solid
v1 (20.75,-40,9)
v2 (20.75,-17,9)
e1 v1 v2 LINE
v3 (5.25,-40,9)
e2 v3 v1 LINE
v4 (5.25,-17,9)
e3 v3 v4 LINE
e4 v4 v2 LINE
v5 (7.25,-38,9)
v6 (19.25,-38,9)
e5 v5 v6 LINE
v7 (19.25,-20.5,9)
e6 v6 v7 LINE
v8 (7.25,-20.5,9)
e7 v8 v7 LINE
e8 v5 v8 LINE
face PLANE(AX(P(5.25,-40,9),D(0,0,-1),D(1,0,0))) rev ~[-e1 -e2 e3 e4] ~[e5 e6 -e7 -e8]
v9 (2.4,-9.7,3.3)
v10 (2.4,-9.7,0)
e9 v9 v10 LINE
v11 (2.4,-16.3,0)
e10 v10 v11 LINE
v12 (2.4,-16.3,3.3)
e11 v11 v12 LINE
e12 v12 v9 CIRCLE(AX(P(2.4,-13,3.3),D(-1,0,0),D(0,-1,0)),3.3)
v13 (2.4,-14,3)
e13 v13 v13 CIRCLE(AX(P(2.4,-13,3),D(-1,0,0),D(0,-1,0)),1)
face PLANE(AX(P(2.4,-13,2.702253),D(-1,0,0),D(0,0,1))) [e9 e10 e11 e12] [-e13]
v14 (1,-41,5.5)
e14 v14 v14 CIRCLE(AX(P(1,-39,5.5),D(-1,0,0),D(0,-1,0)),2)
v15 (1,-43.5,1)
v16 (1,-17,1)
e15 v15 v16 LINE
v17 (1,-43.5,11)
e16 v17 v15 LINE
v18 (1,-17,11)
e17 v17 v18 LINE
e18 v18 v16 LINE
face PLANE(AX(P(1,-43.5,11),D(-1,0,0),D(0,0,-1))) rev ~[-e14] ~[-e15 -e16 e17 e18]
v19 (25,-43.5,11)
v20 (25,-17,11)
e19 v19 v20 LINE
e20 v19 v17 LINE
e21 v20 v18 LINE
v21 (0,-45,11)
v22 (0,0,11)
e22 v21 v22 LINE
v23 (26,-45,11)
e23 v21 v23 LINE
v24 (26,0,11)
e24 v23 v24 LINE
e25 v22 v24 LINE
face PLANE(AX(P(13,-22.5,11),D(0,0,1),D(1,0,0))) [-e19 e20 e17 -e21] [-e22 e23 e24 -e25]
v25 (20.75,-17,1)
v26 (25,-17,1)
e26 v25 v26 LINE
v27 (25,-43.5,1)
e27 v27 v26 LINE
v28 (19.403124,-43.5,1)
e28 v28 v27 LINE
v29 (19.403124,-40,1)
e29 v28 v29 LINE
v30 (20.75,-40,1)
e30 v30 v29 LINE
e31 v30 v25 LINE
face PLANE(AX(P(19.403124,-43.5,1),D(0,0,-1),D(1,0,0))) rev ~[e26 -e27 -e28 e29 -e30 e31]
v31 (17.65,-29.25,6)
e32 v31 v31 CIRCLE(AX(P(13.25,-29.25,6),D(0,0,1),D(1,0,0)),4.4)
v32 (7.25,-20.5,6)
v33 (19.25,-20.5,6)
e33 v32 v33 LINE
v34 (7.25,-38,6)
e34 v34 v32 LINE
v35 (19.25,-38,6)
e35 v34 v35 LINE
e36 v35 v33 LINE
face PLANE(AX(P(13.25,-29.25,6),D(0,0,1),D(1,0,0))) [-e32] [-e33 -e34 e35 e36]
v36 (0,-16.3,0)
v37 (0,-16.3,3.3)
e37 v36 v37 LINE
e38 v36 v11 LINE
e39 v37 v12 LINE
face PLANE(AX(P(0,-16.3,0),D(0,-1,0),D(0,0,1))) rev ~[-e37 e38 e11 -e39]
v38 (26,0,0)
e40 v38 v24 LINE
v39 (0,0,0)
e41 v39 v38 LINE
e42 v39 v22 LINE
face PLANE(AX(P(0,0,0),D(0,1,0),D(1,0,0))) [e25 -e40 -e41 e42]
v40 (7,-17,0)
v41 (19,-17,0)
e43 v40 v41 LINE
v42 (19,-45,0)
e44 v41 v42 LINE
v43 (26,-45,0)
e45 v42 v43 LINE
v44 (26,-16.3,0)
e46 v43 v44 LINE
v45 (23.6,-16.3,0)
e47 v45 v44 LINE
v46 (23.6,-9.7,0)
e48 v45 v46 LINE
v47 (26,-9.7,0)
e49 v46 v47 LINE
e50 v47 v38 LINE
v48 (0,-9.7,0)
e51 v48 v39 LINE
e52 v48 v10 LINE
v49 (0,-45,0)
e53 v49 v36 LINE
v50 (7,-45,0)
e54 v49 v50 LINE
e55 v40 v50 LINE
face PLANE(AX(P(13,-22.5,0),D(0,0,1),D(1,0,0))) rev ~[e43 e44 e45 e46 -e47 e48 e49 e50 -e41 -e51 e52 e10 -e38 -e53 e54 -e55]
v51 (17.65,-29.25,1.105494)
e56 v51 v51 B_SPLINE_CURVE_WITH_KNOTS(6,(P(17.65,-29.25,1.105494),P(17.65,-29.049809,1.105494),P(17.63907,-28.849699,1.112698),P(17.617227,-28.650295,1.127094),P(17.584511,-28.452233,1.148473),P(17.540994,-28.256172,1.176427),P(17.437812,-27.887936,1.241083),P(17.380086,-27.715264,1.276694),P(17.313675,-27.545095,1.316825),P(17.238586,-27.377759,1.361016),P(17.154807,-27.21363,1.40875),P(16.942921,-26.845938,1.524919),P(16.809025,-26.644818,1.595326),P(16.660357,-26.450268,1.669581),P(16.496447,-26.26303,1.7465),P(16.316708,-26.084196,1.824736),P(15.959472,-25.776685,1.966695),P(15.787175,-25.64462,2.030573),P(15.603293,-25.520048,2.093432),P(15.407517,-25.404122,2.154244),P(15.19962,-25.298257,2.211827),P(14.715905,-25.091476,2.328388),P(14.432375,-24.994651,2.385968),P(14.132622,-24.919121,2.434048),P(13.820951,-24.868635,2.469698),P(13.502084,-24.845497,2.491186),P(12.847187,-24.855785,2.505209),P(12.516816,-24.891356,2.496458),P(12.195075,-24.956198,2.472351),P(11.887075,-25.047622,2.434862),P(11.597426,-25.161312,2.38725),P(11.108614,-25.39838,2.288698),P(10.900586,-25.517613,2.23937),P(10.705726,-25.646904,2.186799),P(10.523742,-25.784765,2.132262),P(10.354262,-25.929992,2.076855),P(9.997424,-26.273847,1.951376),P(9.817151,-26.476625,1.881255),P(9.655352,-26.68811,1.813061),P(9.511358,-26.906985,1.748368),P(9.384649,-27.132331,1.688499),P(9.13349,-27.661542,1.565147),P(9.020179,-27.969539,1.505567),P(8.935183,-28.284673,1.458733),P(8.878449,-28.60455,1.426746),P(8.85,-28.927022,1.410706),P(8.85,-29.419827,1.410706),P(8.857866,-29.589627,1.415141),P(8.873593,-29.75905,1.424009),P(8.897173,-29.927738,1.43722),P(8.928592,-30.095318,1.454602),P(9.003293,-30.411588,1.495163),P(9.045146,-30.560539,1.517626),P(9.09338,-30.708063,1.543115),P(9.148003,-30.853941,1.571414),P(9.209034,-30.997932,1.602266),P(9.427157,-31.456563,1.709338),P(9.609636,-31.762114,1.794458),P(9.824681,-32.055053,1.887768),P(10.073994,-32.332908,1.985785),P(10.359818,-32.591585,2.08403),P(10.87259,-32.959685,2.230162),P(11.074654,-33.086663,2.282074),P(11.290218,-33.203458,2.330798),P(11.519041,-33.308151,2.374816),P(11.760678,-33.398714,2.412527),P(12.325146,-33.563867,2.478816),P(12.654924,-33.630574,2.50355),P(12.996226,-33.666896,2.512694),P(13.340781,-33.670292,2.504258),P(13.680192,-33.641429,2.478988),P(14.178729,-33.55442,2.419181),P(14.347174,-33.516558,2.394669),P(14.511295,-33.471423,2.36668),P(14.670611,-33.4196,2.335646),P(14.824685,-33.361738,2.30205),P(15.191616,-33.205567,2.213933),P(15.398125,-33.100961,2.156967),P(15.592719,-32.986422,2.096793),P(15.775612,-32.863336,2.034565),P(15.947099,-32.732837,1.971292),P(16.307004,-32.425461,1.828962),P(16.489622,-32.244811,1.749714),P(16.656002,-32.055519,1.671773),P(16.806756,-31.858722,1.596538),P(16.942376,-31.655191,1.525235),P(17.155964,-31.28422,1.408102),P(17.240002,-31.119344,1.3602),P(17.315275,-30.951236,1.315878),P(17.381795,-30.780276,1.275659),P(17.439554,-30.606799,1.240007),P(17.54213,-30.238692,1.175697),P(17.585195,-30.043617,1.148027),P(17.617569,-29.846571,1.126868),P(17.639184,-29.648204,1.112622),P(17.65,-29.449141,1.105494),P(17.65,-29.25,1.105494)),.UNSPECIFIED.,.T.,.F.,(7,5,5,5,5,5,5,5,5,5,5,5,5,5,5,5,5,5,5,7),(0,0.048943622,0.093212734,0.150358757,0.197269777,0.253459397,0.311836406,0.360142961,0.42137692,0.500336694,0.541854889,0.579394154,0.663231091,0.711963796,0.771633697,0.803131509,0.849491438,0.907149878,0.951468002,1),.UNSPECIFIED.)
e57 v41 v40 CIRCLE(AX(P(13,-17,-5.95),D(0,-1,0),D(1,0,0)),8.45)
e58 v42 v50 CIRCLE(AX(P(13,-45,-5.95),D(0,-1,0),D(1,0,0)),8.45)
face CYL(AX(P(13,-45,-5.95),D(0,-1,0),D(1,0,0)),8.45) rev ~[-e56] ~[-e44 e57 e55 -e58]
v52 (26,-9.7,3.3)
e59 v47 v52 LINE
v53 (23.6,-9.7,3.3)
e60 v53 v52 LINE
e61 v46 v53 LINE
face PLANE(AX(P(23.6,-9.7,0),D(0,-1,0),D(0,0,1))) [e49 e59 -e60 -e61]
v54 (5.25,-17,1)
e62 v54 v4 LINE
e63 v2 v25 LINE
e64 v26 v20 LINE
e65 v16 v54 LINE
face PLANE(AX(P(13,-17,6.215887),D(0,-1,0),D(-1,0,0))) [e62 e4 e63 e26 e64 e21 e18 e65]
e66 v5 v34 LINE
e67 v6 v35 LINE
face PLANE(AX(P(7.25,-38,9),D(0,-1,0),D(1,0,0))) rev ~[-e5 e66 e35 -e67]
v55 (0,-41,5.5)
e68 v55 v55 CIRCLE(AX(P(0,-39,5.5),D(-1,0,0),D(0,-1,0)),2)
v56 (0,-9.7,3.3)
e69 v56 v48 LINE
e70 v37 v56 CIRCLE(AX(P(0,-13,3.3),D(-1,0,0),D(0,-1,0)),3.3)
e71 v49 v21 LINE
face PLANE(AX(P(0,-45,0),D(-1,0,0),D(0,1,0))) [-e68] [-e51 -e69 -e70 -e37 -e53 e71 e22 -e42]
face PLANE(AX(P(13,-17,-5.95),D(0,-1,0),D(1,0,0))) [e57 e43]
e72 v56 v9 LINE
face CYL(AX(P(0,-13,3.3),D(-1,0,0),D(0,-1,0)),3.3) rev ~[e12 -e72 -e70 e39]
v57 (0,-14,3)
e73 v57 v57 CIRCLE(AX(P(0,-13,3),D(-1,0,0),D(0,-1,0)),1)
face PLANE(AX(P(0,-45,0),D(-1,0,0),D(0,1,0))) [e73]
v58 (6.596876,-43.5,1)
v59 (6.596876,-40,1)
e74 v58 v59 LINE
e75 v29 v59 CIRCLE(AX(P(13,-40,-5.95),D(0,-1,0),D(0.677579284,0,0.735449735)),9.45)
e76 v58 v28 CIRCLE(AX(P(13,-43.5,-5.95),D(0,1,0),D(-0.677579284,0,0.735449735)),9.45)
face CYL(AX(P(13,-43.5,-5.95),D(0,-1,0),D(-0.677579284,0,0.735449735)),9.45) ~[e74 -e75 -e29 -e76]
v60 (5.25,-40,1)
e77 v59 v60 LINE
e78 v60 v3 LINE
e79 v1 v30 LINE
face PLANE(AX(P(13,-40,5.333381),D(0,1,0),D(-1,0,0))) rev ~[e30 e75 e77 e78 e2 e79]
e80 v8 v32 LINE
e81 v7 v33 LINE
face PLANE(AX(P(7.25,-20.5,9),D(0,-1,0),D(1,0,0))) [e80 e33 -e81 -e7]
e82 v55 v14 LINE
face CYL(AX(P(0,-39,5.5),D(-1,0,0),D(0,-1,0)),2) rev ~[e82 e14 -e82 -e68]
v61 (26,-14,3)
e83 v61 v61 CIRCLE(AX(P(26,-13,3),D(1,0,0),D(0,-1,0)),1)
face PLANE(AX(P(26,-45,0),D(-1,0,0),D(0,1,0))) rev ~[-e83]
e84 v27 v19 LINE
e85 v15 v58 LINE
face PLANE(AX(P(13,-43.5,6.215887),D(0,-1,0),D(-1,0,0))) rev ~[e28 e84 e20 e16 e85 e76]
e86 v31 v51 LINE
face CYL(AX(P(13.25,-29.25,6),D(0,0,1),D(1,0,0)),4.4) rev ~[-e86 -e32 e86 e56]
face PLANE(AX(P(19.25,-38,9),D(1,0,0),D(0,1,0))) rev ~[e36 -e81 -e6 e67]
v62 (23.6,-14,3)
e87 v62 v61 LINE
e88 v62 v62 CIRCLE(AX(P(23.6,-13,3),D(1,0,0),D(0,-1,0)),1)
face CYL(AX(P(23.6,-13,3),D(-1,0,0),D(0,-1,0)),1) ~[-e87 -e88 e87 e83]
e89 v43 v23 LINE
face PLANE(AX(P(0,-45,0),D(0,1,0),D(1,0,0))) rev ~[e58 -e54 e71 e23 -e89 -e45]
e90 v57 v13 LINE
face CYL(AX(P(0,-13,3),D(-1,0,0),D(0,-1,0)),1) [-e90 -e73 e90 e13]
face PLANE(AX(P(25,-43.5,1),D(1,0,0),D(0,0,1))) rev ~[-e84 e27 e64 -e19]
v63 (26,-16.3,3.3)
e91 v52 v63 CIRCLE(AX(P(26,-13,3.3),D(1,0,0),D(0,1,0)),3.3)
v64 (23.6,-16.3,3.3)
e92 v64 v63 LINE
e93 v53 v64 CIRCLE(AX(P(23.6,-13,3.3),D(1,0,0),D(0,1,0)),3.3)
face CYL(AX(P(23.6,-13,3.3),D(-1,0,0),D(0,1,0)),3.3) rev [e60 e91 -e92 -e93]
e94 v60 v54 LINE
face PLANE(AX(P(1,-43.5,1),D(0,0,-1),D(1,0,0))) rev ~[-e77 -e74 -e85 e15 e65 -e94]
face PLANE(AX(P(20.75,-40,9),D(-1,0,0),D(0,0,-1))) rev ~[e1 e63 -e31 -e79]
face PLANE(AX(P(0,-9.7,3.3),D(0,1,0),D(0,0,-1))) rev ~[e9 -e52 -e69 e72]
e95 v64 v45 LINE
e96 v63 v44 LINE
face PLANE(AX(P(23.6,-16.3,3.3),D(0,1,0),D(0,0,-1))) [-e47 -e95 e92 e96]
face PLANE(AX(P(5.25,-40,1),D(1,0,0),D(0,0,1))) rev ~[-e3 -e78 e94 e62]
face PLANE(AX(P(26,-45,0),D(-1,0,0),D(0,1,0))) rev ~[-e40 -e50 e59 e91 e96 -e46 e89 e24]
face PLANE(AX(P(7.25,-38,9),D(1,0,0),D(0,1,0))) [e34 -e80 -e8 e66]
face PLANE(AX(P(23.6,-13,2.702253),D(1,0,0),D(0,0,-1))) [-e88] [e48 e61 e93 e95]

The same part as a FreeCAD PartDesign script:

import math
import FreeCAD as App
import Part
import Sketcher
from FreeCAD import Vector


def add_polygon(sketch, points):
    """Adds a closed chain of lines whose ends are joined by coincident constraints."""
    first, n = sketch.GeometryCount, len(points)
    for a, b in zip(points, points[1:] + points[:1]):
        sketch.addGeometry(Part.LineSegment(App.Vector(*a, 0), App.Vector(*b, 0)), False)
    for i in range(n):
        sketch.addConstraint(Sketcher.Constraint("Coincident", first + i, 2, first + (i + 1) % n, 1))

doc = App.newDocument("Part")
body = doc.addObject("PartDesign::Body", "Body")

# Sketch on XY plane
sketch1 = body.newObject("Sketcher::SketchObject", "Sketch")
sketch1.AttachmentSupport = (doc.getObject("XY_Plane"), [""])
sketch1.MapMode = "FlatFace"
add_polygon(sketch1, [(0, 0), (0, -45), (26, -45), (26, 0)])  # lines 0-3
sketch1.addConstraint(Sketcher.Constraint("Vertical", 0))
sketch1.addConstraint(Sketcher.Constraint("Horizontal", 1))
sketch1.addConstraint(Sketcher.Constraint("Vertical", 2))
sketch1.addConstraint(Sketcher.Constraint("Horizontal", 3))
sketch1.addConstraint(Sketcher.Constraint("Coincident", 3, 2, -1, 1))
sketch1.addConstraint(Sketcher.Constraint("DistanceX", 1, 1, 1, 2, 26.0))
sketch1.addConstraint(Sketcher.Constraint("DistanceY", 0, 2, 0, 1, 45.0))
pad1 = body.newObject("PartDesign::Pad", "Pad")
pad1.Profile = sketch1
pad1.Length = 11

# Sketch on XZ plane
sketch2 = body.newObject("Sketcher::SketchObject", "Sketch001")
sketch2.AttachmentSupport = (doc.getObject("XZ_Plane"), [""])
sketch2.MapMode = "FlatFace"
sketch2.AttachmentOffset = App.Placement(Vector(0, 0, 45), App.Rotation())
sketch2.addGeometry(Part.Circle(Vector(13, -6, 0), Vector(0, 0, 1), 8), False)
sketch2.addConstraint(Sketcher.Constraint("Diameter", 0, 16.9))
sketch2.addConstraint(Sketcher.Constraint("DistanceX", -1, 1, 0, 3, 13.0))
sketch2.addConstraint(Sketcher.Constraint("DistanceY", 0, 3, -1, 1, 5.95))
pocket1 = body.newObject("PartDesign::Pocket", "Pocket")
pocket1.Profile = sketch2
pocket1.Length = 28

# Sketch on XZ plane
sketch3 = body.newObject("Sketcher::SketchObject", "Sketch002")
sketch3.AttachmentSupport = (doc.getObject("XZ_Plane"), [""])
sketch3.MapMode = "FlatFace"
sketch3.AttachmentOffset = App.Placement(Vector(0, 0, 43.5), App.Rotation())
sketch3.addGeometry(Part.LineSegment(Vector(1, 11, 0), Vector(1, 1, 0)), False)
sketch3.addGeometry(Part.LineSegment(Vector(1, 1, 0), Vector(7, 1, 0)), False)
sketch3.addGeometry(Part.ArcOfCircle(Part.Circle(Vector(13, -6, 0), Vector(0, 0, 1), 9), math.radians(47), math.radians(133)), False)
sketch3.addGeometry(Part.LineSegment(Vector(19, 1, 0), Vector(25, 1, 0)), False)
sketch3.addGeometry(Part.LineSegment(Vector(25, 1, 0), Vector(25, 11, 0)), False)
sketch3.addGeometry(Part.LineSegment(Vector(25, 11, 0), Vector(1, 11, 0)), False)
sketch3.addConstraint(Sketcher.Constraint("Coincident", 0, 2, 1, 1))
sketch3.addConstraint(Sketcher.Constraint("Coincident", 1, 2, 2, 2))
sketch3.addConstraint(Sketcher.Constraint("Coincident", 2, 1, 3, 1))
sketch3.addConstraint(Sketcher.Constraint("Coincident", 3, 2, 4, 1))
sketch3.addConstraint(Sketcher.Constraint("Coincident", 4, 2, 5, 1))
sketch3.addConstraint(Sketcher.Constraint("Coincident", 5, 2, 0, 1))
sketch3.addConstraint(Sketcher.Constraint("Vertical", 0))
sketch3.addConstraint(Sketcher.Constraint("Horizontal", 1))
sketch3.addConstraint(Sketcher.Constraint("Horizontal", 3))
sketch3.addConstraint(Sketcher.Constraint("Vertical", 4))
sketch3.addConstraint(Sketcher.Constraint("Horizontal", 5))
sketch3.addConstraint(Sketcher.Constraint("Horizontal", 1, 2, 2, 1))
sketch3.addConstraint(Sketcher.Constraint("Equal", 1, 3))
sketch3.addConstraint(Sketcher.Constraint("DistanceX", 5, 2, 5, 1, 24.0))
sketch3.addConstraint(Sketcher.Constraint("DistanceY", 0, 2, 0, 1, 10.0))
sketch3.addConstraint(Sketcher.Constraint("Radius", 2, 9.45))
sketch3.addConstraint(Sketcher.Constraint("DistanceX", -1, 1, 2, 3, 13.0))
sketch3.addConstraint(Sketcher.Constraint("DistanceY", -1, 1, 0, 2, 1.0))
sketch3.addConstraint(Sketcher.Constraint("DistanceY", 2, 3, -1, 1, 5.95))
pocket2 = body.newObject("PartDesign::Pocket", "Pocket001")
pocket2.Profile = sketch3
pocket2.Length = 26.5

# Sketch on XZ plane
sketch4 = body.newObject("Sketcher::SketchObject", "Sketch003")
sketch4.AttachmentSupport = (doc.getObject("XZ_Plane"), [""])
sketch4.MapMode = "FlatFace"
sketch4.AttachmentOffset = App.Placement(Vector(0, 0, 40), App.Rotation())
sketch4.addGeometry(Part.LineSegment(Vector(5.2, 1, 0), Vector(6.6, 1, 0)), False)
sketch4.addGeometry(Part.ArcOfCircle(Part.Circle(Vector(13, -5.9, 0), Vector(0, 0, 1), 9.4), math.radians(47), math.radians(133)), False)
sketch4.addGeometry(Part.LineSegment(Vector(19.4, 1, 0), Vector(20.8, 1, 0)), False)
sketch4.addGeometry(Part.LineSegment(Vector(20.8, 1, 0), Vector(20.8, 9, 0)), False)
sketch4.addGeometry(Part.LineSegment(Vector(20.8, 9, 0), Vector(5.2, 9, 0)), False)
sketch4.addGeometry(Part.LineSegment(Vector(5.2, 9, 0), Vector(5.2, 1, 0)), False)
sketch4.addConstraint(Sketcher.Constraint("Coincident", 0, 2, 1, 2))
sketch4.addConstraint(Sketcher.Constraint("Coincident", 1, 1, 2, 1))
sketch4.addConstraint(Sketcher.Constraint("Coincident", 2, 2, 3, 1))
sketch4.addConstraint(Sketcher.Constraint("Coincident", 3, 2, 4, 1))
sketch4.addConstraint(Sketcher.Constraint("Coincident", 4, 2, 5, 1))
sketch4.addConstraint(Sketcher.Constraint("Coincident", 5, 2, 0, 1))
sketch4.addConstraint(Sketcher.Constraint("Horizontal", 0))
sketch4.addConstraint(Sketcher.Constraint("Horizontal", 2))
sketch4.addConstraint(Sketcher.Constraint("Vertical", 3))
sketch4.addConstraint(Sketcher.Constraint("Horizontal", 4))
sketch4.addConstraint(Sketcher.Constraint("Vertical", 5))
sketch4.addConstraint(Sketcher.Constraint("Horizontal", 0, 2, 1, 1))
sketch4.addConstraint(Sketcher.Constraint("Equal", 0, 2))
sketch4.addConstraint(Sketcher.Constraint("DistanceY", 3, 1, 3, 2, 8.0))
sketch4.addConstraint(Sketcher.Constraint("Radius", 1, 9.45))
sketch4.addConstraint(Sketcher.Constraint("DistanceX", 4, 2, 4, 1, 15.5))
sketch4.addConstraint(Sketcher.Constraint("DistanceX", -1, 1, 1, 3, 13.0))
sketch4.addConstraint(Sketcher.Constraint("DistanceY", -1, 1, 0, 2, 1.0))
sketch4.addConstraint(Sketcher.Constraint("DistanceY", 1, 3, -1, 1, 5.95))
pad2 = body.newObject("PartDesign::Pad", "Pad001")
pad2.Profile = sketch4
pad2.Length = 23
pad2.Reversed = True

# Sketch on XY plane
sketch5 = body.newObject("Sketcher::SketchObject", "Sketch004")
sketch5.AttachmentSupport = (doc.getObject("XY_Plane"), [""])
sketch5.MapMode = "FlatFace"
sketch5.AttachmentOffset = App.Placement(Vector(0, 0, 9), App.Rotation())
add_polygon(sketch5, [(7, -20), (7, -38), (19, -38), (19, -20)])  # lines 0-3
sketch5.addConstraint(Sketcher.Constraint("Vertical", 0))
sketch5.addConstraint(Sketcher.Constraint("Horizontal", 1))
sketch5.addConstraint(Sketcher.Constraint("Vertical", 2))
sketch5.addConstraint(Sketcher.Constraint("Horizontal", 3))
sketch5.addConstraint(Sketcher.Constraint("DistanceX", 1, 1, 1, 2, 12.0))
sketch5.addConstraint(Sketcher.Constraint("DistanceY", 0, 2, 0, 1, 17.5))
sketch5.addConstraint(Sketcher.Constraint("DistanceY", 0, 2, -1, 1, 38.0))
sketch5.addConstraint(Sketcher.Constraint("DistanceX", -1, 1, 0, 2, 7.25))
pocket3 = body.newObject("PartDesign::Pocket", "Pocket002")
pocket3.Profile = sketch5
pocket3.Length = 3

# Sketch on XY plane
sketch6 = body.newObject("Sketcher::SketchObject", "Sketch005")
sketch6.AttachmentSupport = (doc.getObject("XY_Plane"), [""])
sketch6.MapMode = "FlatFace"
sketch6.AttachmentOffset = App.Placement(Vector(0, 0, 6), App.Rotation())
sketch6.addGeometry(Part.Circle(Vector(13.2, -29.2, 0), Vector(0, 0, 1), 4.4), False)
sketch6.addConstraint(Sketcher.Constraint("Diameter", 0, 8.8))
sketch6.addConstraint(Sketcher.Constraint("DistanceX", -1, 1, 0, 3, 13.25))
sketch6.addConstraint(Sketcher.Constraint("DistanceY", 0, 3, -1, 1, 29.25))
pocket4 = body.newObject("PartDesign::Pocket", "Pocket003")
pocket4.Profile = sketch6
pocket4.Type = "ThroughAll"

# Sketch on YZ plane
sketch7 = body.newObject("Sketcher::SketchObject", "Sketch006")
sketch7.AttachmentSupport = (doc.getObject("YZ_Plane"), [""])
sketch7.MapMode = "FlatFace"
sketch7.addGeometry(Part.Circle(Vector(-39, 5.5, 0), Vector(0, 0, 1), 2), False)
sketch7.addConstraint(Sketcher.Constraint("Diameter", 0, 4.0))
sketch7.addConstraint(Sketcher.Constraint("DistanceX", 0, 3, -1, 1, 39.0))
sketch7.addConstraint(Sketcher.Constraint("DistanceY", -1, 1, 0, 3, 5.5))
pocket5 = body.newObject("PartDesign::Pocket", "Pocket004")
pocket5.Profile = sketch7
pocket5.Length = 3
pocket5.Reversed = True

# Sketch on YZ plane
sketch8 = body.newObject("Sketcher::SketchObject", "Sketch007")
sketch8.AttachmentSupport = (doc.getObject("YZ_Plane"), [""])
sketch8.MapMode = "FlatFace"
sketch8.addGeometry(Part.LineSegment(Vector(-16.3, 0, 0), Vector(-16.3, 3.3, 0)), False)
sketch8.addGeometry(Part.ArcOfCircle(Part.Circle(Vector(-13, 3.3, 0), Vector(0, 0, 1), 3.3), math.radians(0), math.radians(180)), False)
sketch8.addGeometry(Part.LineSegment(Vector(-9.7, 3.3, 0), Vector(-9.7, 0, 0)), False)
sketch8.addGeometry(Part.LineSegment(Vector(-9.7, 0, 0), Vector(-16.3, 0, 0)), False)
sketch8.addGeometry(Part.Circle(Vector(-13, 3, 0), Vector(0, 0, 1), 1), False)
sketch8.addConstraint(Sketcher.Constraint("Tangent", 0, 2, 1, 2))
sketch8.addConstraint(Sketcher.Constraint("Tangent", 1, 1, 2, 1))
sketch8.addConstraint(Sketcher.Constraint("Coincident", 2, 2, 3, 1))
sketch8.addConstraint(Sketcher.Constraint("Coincident", 3, 2, 0, 1))
sketch8.addConstraint(Sketcher.Constraint("Vertical", 0))
sketch8.addConstraint(Sketcher.Constraint("Vertical", 2))
sketch8.addConstraint(Sketcher.Constraint("Horizontal", 3))
sketch8.addConstraint(Sketcher.Constraint("PointOnObject", 2, 2, -1))
sketch8.addConstraint(Sketcher.Constraint("Vertical", 1, 3, 4, 3))
sketch8.addConstraint(Sketcher.Constraint("Diameter", 4, 2.0))
sketch8.addConstraint(Sketcher.Constraint("Radius", 1, 3.3))
sketch8.addConstraint(Sketcher.Constraint("DistanceY", 0, 1, 0, 2, 3.3))
sketch8.addConstraint(Sketcher.Constraint("DistanceX", 1, 3, -1, 1, 13.0))
sketch8.addConstraint(Sketcher.Constraint("DistanceY", -1, 1, 4, 3, 3.0))
pocket6 = body.newObject("PartDesign::Pocket", "Pocket005")
pocket6.Profile = sketch8
pocket6.Length = 2.4
pocket6.Reversed = True

# Sketch on YZ plane
sketch9 = body.newObject("Sketcher::SketchObject", "Sketch008")
sketch9.AttachmentSupport = (doc.getObject("YZ_Plane"), [""])
sketch9.MapMode = "FlatFace"
sketch9.AttachmentOffset = App.Placement(Vector(0, 0, 23.6), App.Rotation())
sketch9.addGeometry(Part.LineSegment(Vector(-16.3, 0, 0), Vector(-9.7, 0, 0)), False)
sketch9.addGeometry(Part.LineSegment(Vector(-9.7, 0, 0), Vector(-9.7, 3.3, 0)), False)
sketch9.addGeometry(Part.ArcOfCircle(Part.Circle(Vector(-13, 3.3, 0), Vector(0, 0, 1), 3.3), math.radians(0), math.radians(180)), False)
sketch9.addGeometry(Part.LineSegment(Vector(-16.3, 3.3, 0), Vector(-16.3, 0, 0)), False)
sketch9.addGeometry(Part.Circle(Vector(-13, 3, 0), Vector(0, 0, 1), 1), False)
sketch9.addConstraint(Sketcher.Constraint("Coincident", 0, 2, 1, 1))
sketch9.addConstraint(Sketcher.Constraint("Tangent", 1, 2, 2, 1))
sketch9.addConstraint(Sketcher.Constraint("Tangent", 2, 2, 3, 1))
sketch9.addConstraint(Sketcher.Constraint("Coincident", 3, 2, 0, 1))
sketch9.addConstraint(Sketcher.Constraint("Horizontal", 0))
sketch9.addConstraint(Sketcher.Constraint("Vertical", 1))
sketch9.addConstraint(Sketcher.Constraint("Vertical", 3))
sketch9.addConstraint(Sketcher.Constraint("PointOnObject", 0, 2, -1))
sketch9.addConstraint(Sketcher.Constraint("Vertical", 2, 3, 4, 3))
sketch9.addConstraint(Sketcher.Constraint("Diameter", 4, 2.0))
sketch9.addConstraint(Sketcher.Constraint("Radius", 2, 3.3))
sketch9.addConstraint(Sketcher.Constraint("DistanceY", 1, 1, 1, 2, 3.3))
sketch9.addConstraint(Sketcher.Constraint("DistanceX", 2, 3, -1, 1, 13.0))
sketch9.addConstraint(Sketcher.Constraint("DistanceY", -1, 1, 4, 3, 3.0))
pocket7 = body.newObject("PartDesign::Pocket", "Pocket006")
pocket7.Profile = sketch9
pocket7.Length = 2.4
pocket7.Reversed = True

doc.recompute()
